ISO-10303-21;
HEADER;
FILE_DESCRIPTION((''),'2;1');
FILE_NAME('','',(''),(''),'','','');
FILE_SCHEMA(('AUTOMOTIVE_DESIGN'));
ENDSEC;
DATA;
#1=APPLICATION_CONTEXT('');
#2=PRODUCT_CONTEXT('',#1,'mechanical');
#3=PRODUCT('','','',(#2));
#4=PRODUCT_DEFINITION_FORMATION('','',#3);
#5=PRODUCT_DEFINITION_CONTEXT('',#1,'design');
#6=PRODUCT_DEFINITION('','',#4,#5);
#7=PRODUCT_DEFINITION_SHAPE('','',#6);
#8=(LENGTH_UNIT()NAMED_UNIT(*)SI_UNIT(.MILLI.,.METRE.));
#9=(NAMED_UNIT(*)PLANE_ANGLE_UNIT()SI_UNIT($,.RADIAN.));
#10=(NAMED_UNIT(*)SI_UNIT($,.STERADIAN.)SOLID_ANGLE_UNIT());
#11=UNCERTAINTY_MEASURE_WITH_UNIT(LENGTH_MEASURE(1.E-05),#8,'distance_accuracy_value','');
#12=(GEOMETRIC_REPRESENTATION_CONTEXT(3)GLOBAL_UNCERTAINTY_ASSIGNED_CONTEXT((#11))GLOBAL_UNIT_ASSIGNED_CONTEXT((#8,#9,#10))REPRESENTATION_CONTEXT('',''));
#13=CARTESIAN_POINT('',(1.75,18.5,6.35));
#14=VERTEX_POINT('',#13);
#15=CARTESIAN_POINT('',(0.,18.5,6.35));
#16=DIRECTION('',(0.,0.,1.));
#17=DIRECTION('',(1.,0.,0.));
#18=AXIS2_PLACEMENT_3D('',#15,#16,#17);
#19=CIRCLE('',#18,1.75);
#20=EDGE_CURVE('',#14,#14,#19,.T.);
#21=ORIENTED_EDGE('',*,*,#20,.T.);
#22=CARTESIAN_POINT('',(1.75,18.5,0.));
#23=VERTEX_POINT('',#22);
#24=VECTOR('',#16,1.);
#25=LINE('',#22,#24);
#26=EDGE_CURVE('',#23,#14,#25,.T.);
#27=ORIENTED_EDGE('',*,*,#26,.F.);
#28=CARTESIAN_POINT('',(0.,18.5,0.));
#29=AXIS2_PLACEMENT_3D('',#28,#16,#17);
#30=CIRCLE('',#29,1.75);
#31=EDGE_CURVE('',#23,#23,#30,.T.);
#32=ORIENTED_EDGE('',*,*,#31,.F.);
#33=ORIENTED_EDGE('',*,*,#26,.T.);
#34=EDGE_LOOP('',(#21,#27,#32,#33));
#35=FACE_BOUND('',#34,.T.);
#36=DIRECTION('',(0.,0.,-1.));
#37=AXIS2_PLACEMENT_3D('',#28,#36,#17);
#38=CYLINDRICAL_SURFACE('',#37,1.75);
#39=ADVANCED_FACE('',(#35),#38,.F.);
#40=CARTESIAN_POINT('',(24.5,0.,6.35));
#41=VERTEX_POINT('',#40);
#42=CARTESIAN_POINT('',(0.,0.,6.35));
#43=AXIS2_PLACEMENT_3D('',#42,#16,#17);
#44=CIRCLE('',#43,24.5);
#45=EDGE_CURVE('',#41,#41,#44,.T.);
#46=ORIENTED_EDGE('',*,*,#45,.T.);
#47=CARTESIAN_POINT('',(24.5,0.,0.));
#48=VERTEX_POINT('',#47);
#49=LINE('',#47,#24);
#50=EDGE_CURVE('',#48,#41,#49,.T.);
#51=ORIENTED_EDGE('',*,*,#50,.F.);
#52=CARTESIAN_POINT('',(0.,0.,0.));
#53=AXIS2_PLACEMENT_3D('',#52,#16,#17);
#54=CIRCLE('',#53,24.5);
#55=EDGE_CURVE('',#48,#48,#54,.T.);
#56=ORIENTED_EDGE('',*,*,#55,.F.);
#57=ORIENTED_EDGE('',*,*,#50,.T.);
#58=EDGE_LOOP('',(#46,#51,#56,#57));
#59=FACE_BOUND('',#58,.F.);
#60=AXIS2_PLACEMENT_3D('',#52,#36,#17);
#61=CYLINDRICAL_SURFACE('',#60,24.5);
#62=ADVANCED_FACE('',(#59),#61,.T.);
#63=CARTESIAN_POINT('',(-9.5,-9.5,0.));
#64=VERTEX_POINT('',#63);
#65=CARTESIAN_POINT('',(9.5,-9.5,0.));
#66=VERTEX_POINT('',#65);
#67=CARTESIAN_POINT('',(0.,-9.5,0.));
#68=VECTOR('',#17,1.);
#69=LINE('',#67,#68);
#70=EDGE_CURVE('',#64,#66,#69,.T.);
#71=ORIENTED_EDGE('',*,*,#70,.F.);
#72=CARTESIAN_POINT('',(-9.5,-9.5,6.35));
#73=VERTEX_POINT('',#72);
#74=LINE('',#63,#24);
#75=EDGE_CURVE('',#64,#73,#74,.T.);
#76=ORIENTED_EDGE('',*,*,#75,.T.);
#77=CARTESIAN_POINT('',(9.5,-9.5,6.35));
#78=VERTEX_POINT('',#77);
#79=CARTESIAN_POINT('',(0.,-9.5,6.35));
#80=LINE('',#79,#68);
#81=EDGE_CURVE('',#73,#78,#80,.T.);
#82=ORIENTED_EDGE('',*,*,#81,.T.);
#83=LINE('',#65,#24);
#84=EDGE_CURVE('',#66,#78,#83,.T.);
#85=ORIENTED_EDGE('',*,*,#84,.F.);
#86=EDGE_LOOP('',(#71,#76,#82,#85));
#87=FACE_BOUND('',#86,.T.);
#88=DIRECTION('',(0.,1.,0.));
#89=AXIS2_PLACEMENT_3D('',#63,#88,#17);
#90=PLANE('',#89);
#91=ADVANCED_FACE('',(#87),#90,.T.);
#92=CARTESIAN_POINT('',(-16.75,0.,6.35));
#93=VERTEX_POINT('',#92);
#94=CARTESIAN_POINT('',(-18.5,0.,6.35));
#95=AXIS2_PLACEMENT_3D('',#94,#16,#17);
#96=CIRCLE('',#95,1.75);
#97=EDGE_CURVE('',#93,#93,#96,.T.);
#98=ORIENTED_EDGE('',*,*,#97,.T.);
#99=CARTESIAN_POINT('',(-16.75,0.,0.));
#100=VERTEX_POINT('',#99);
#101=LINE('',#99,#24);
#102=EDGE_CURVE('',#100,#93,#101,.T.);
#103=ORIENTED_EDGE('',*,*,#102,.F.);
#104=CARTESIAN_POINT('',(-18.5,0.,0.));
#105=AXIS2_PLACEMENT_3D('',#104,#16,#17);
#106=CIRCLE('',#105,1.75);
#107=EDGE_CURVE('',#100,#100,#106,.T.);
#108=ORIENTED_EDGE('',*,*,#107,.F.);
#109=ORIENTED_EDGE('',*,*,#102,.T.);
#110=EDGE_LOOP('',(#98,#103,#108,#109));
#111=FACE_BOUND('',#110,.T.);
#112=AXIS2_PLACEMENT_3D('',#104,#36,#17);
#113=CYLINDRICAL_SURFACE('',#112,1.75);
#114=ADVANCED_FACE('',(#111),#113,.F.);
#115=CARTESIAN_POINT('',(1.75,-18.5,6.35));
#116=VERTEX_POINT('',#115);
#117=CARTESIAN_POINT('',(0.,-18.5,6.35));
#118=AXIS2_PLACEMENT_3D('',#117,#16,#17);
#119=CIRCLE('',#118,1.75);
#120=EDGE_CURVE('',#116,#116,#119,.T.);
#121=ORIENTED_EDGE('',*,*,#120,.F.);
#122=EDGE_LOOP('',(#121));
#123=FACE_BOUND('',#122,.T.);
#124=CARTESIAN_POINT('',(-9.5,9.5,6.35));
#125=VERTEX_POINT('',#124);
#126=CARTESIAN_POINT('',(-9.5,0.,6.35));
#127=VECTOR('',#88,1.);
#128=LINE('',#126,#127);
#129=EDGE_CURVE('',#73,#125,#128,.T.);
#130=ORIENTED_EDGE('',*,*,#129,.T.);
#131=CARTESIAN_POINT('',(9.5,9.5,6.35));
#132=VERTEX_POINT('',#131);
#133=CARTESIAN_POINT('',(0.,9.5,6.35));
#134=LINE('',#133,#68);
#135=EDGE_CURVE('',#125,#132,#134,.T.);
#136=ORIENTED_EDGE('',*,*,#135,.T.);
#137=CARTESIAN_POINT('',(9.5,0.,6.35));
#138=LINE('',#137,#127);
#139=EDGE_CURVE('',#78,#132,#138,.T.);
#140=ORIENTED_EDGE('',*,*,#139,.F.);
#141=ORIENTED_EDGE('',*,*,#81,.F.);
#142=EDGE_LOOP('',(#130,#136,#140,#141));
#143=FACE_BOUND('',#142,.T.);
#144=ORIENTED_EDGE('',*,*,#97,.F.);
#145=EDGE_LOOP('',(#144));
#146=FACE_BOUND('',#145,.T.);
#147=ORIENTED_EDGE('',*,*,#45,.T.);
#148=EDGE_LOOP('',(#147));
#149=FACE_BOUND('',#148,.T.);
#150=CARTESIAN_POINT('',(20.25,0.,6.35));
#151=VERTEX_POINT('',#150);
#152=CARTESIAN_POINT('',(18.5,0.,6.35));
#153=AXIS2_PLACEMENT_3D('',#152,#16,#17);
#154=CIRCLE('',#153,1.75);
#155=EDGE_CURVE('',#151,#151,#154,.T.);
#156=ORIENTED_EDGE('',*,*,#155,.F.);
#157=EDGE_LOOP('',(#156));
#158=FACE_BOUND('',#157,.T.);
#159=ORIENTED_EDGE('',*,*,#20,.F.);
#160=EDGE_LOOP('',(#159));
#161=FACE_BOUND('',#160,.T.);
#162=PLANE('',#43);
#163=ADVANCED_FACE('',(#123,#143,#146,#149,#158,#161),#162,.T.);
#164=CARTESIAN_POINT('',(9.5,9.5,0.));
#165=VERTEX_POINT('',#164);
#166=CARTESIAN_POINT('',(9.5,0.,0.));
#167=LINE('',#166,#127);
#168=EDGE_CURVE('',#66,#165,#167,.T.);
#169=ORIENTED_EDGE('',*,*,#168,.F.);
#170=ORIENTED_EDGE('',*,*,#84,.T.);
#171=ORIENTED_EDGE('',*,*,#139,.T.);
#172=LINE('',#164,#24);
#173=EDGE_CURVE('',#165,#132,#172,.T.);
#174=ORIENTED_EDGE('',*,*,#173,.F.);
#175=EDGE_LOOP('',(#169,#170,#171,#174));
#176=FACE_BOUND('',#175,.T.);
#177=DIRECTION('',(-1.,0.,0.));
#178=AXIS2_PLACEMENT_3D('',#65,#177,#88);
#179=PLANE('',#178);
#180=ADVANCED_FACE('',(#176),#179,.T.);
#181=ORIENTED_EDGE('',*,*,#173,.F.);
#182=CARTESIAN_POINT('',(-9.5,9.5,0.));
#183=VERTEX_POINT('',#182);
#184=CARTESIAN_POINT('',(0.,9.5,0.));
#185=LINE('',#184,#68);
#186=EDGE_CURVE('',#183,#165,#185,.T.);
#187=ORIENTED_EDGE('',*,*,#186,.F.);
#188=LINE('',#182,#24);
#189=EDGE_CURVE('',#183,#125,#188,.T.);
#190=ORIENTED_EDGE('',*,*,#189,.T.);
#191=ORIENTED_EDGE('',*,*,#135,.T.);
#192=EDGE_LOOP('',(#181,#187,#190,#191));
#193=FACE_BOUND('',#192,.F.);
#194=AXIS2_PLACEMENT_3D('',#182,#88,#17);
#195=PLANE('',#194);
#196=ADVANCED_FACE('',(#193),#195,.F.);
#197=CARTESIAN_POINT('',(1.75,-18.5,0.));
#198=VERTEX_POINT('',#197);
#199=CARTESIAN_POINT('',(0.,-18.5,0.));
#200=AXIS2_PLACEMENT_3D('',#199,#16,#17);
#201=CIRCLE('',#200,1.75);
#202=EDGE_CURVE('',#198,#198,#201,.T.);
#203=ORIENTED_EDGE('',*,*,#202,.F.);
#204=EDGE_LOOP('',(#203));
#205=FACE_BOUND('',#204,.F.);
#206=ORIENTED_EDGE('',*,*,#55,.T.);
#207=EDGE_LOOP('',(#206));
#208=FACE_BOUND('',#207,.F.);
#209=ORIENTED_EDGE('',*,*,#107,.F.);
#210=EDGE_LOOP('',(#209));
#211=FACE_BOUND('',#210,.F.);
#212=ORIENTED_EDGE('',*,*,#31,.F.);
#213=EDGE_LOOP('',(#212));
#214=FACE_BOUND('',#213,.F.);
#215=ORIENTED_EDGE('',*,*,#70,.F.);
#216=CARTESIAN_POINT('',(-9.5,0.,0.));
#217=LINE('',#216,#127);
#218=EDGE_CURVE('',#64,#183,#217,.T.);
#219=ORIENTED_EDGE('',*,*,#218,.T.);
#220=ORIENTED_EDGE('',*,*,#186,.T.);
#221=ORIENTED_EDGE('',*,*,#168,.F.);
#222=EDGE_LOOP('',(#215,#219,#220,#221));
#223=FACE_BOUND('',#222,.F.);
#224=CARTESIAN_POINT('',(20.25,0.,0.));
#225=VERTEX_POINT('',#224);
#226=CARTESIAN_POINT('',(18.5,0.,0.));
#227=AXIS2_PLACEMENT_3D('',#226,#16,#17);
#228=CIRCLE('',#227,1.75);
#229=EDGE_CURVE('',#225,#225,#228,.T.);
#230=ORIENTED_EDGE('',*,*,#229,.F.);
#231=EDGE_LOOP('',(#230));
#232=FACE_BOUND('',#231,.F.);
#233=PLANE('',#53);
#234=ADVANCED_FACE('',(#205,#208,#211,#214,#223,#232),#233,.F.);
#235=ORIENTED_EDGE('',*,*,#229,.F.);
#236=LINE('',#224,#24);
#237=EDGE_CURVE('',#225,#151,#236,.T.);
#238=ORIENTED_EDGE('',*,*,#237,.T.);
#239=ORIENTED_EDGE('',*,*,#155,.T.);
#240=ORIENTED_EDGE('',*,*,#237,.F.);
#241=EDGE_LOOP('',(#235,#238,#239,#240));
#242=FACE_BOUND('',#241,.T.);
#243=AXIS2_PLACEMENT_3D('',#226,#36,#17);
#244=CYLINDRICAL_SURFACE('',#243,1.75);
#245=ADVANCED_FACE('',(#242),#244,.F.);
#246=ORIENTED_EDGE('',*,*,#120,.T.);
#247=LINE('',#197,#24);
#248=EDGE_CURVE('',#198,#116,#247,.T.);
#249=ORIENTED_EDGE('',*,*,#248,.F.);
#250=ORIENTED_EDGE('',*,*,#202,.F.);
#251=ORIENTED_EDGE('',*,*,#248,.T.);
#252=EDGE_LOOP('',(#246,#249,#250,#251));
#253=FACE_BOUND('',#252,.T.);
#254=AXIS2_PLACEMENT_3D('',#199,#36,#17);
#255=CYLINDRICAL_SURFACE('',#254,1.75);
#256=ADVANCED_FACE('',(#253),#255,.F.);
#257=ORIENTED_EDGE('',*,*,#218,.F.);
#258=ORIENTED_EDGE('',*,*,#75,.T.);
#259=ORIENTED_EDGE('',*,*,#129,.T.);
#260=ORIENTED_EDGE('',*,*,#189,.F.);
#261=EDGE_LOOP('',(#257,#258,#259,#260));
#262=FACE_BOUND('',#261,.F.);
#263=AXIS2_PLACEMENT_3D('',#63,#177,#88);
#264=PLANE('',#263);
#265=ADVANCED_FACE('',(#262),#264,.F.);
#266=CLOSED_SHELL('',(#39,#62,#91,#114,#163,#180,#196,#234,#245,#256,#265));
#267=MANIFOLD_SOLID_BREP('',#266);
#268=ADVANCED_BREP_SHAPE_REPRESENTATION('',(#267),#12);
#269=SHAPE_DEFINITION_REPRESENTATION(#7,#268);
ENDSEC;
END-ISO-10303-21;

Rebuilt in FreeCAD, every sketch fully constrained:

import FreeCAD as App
import Part
import Sketcher
from FreeCAD import Vector


def add_polygon(sketch, points):
    """Adds a closed chain of lines whose ends are joined by coincident constraints."""
    first, n = sketch.GeometryCount, len(points)
    for a, b in zip(points, points[1:] + points[:1]):
        sketch.addGeometry(Part.LineSegment(App.Vector(*a, 0), App.Vector(*b, 0)), False)
    for i in range(n):
        sketch.addConstraint(Sketcher.Constraint("Coincident", first + i, 2, first + (i + 1) % n, 1))

doc = App.newDocument("Part")
params = doc.addObject("Spreadsheet::Sheet", "Params")
for row, (alias, value) in enumerate([
    ("sketch1_diameter", "49 mm"),
    ("sketch1_diameter2", "3.5 mm"),
    ("sketch1_width", "19 mm"),
    ("pad1_length", "6.35 mm"),
], start=1):
    params.set(f"A{row}", alias)
    params.set(f"B{row}", "=" + value)
    params.setAlias(f"B{row}", alias)

body = doc.addObject("PartDesign::Body", "Body")

# Sketch on XY plane
sketch1 = body.newObject("Sketcher::SketchObject", "Sketch")
sketch1.AttachmentSupport = (doc.getObject("XY_Plane"), [""])
sketch1.MapMode = "FlatFace"
sketch1.addGeometry(Part.Circle(Vector(0, 0, 0), Vector(0, 0, 1), 24.5), False)  # 0
sketch1.addGeometry(Part.Circle(Vector(0, -18.5, 0), Vector(0, 0, 1), 1.8), False)  # 1
sketch1.addGeometry(Part.Circle(Vector(-18.5, 0, 0), Vector(0, 0, 1), 1.8), False)  # 2
add_polygon(sketch1, [(9.5, -9.5), (-9.5, -9.5), (-9.5, 9.5), (9.5, 9.5)])  # lines 3-6
sketch1.addGeometry(Part.Circle(Vector(18.5, 0, 0), Vector(0, 0, 1), 1.8), False)  # 7
sketch1.addGeometry(Part.Circle(Vector(0, 18.5, 0), Vector(0, 0, 1), 1.8), False)  # 8
sketch1.addConstraint([
    Sketcher.Constraint("Horizontal", 3),
    Sketcher.Constraint("Vertical", 4),
    Sketcher.Constraint("Horizontal", 5),
    Sketcher.Constraint("Vertical", 6),
    Sketcher.Constraint("Coincident", 0, 3, -1, 1),
    Sketcher.Constraint("Equal", 1, 2),
    Sketcher.Constraint("Equal", 2, 7),
    Sketcher.Constraint("Equal", 7, 8),
    Sketcher.Constraint("Symmetric", 2, 3, 7, 3, -1, 1),
    Sketcher.Constraint("Symmetric", 1, 3, 8, 3, -1, 1),
    Sketcher.Constraint("Symmetric", 3, 2, 5, 2, -1, 1),
    Sketcher.Constraint("PointOnObject", 1, 3, -2),
    Sketcher.Constraint("PointOnObject", 2, 3, -1),
    Sketcher.Constraint("Equal", 5, 4),
    Sketcher.Constraint("Diameter", 0, 49.0),
    Sketcher.Constraint("Diameter", 1, 3.5),
    Sketcher.Constraint("DistanceX", 3, 2, 3, 1, 19.0),
    Sketcher.Constraint("DistanceX", 2, 3, 7, 3, 37.0),
    Sketcher.Constraint("DistanceY", 1, 3, 8, 3, 37.0),
])
sketch1.setExpression("Constraints[18]", "Params.sketch1_diameter")
sketch1.setExpression("Constraints[19]", "Params.sketch1_diameter2")
sketch1.setExpression("Constraints[20]", "Params.sketch1_width")
pad1 = body.newObject("PartDesign::Pad", "Pad")
pad1.Profile = sketch1
pad1.setExpression("Length", "Params.pad1_length")

doc.recompute()
